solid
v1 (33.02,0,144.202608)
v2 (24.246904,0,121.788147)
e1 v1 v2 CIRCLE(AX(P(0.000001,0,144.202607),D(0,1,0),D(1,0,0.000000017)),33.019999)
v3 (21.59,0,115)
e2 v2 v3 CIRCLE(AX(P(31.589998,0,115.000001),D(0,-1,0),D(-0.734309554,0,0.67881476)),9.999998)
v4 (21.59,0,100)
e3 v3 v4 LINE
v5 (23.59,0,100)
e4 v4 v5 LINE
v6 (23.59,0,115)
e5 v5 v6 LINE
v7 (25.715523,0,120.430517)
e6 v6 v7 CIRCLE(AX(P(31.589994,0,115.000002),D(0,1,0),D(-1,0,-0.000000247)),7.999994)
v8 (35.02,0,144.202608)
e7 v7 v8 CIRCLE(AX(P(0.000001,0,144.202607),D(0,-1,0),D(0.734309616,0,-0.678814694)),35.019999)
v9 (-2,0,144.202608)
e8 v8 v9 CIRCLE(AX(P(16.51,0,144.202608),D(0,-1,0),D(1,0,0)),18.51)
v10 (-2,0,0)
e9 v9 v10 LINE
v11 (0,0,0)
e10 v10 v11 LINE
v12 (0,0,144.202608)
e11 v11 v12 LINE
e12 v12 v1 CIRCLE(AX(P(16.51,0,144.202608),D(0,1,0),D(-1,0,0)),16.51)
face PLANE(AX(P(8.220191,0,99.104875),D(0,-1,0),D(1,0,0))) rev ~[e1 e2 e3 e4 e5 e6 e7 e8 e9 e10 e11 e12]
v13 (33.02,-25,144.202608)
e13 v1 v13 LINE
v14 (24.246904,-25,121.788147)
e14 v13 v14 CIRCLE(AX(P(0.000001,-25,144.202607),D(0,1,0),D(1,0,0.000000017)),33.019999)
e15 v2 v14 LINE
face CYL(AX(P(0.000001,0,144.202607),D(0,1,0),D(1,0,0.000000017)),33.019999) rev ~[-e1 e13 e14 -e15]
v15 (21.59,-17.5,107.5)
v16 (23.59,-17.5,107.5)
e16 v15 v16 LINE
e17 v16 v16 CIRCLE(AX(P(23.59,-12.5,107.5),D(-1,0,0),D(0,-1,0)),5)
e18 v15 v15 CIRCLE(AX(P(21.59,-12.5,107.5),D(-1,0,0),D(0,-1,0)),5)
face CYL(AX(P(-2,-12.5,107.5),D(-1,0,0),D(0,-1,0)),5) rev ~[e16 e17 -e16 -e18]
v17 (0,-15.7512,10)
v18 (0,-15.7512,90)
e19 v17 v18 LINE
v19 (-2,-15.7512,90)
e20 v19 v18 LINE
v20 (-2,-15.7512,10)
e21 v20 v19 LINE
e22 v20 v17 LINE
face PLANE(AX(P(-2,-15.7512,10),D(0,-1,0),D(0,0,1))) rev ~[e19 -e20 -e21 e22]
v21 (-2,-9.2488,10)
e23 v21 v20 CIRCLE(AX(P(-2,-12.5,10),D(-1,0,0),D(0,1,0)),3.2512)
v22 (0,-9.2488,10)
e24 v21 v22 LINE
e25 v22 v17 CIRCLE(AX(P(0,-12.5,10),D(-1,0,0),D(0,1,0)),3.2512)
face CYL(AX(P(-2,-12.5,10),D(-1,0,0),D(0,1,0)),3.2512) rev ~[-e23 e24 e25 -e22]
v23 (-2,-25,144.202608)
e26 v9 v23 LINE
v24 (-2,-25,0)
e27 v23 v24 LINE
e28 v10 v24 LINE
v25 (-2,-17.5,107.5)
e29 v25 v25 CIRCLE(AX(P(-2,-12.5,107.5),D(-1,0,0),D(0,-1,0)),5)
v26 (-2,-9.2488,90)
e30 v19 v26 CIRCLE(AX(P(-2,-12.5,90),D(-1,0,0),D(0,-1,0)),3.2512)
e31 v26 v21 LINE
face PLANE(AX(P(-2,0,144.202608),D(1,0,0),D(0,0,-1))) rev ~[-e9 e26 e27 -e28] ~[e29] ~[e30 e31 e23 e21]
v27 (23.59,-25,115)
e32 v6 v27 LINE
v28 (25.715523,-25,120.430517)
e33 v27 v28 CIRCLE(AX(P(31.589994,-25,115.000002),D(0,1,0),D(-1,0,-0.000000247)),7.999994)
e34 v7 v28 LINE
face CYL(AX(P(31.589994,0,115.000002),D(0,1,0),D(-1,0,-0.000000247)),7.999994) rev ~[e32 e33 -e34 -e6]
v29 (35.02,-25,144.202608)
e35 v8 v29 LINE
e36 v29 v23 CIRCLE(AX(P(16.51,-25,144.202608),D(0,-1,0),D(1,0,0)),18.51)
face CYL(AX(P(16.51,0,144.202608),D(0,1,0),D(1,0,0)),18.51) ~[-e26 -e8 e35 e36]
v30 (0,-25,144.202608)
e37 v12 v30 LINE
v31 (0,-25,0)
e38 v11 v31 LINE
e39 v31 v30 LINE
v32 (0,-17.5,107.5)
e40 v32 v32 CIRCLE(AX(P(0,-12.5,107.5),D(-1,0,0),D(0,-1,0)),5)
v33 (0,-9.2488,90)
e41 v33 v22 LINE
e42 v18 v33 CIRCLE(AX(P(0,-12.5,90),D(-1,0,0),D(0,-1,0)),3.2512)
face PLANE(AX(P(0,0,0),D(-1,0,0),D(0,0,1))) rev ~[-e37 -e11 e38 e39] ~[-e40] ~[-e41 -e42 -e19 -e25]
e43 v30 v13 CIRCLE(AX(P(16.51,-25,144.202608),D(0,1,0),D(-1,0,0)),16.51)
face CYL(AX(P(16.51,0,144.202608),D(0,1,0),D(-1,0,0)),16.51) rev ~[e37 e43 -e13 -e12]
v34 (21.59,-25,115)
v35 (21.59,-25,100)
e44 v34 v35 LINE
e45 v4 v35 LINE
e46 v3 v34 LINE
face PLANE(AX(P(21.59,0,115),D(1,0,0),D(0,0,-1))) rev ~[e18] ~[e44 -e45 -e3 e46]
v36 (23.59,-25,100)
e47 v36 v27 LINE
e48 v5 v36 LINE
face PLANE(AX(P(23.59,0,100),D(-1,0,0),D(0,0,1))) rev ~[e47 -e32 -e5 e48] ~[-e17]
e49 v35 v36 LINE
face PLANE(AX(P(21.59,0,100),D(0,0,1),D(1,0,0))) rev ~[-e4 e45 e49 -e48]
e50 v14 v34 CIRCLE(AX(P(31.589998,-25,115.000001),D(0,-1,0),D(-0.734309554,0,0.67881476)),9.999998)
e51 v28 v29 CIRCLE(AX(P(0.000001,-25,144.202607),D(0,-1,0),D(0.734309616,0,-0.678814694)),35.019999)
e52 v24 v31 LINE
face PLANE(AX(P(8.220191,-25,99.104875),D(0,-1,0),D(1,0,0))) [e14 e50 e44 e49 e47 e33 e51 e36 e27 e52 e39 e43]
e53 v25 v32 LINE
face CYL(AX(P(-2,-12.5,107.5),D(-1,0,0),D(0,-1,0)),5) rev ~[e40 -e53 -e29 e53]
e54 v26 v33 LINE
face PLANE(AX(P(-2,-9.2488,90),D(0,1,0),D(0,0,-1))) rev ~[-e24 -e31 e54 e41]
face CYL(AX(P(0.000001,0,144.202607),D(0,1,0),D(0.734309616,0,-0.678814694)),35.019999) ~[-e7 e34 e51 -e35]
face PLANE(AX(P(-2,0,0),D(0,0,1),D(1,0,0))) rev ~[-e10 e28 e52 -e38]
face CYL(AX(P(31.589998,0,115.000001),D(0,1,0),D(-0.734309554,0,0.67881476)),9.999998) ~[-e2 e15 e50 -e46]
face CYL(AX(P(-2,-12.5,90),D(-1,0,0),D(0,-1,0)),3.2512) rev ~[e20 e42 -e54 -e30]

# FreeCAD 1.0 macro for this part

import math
import FreeCAD as App
import Part
import Sketcher
from FreeCAD import Vector

doc = App.newDocument("Part")
body = doc.addObject("PartDesign::Body", "Body")

# Sketch on XZ plane
sketch1 = body.newObject("Sketcher::SketchObject", "Sketch")
sketch1.AttachmentSupport = (doc.getObject("XZ_Plane"), [""])
sketch1.MapMode = "FlatFace"
sketch1.addGeometry(Part.LineSegment(Vector(-2, 0, 0), Vector(0, 0, 0)), False)
sketch1.addGeometry(Part.LineSegment(Vector(0, 0, 0), Vector(0, 144.2, 0)), False)
sketch1.addGeometry(Part.ArcOfCircle(Part.Circle(Vector(16.5, 144.2, 0), Vector(0, 0, 1), 16.5), math.radians(0), math.radians(180)), False)
sketch1.addGeometry(Part.ArcOfCircle(Part.Circle(Vector(0, 144.2, 0), Vector(0, 0, 1), 33), math.radians(-43), math.radians(0)), False)
sketch1.addGeometry(Part.ArcOfCircle(Part.Circle(Vector(31.6, 115, 0), Vector(0, 0, 1), 10), math.radians(137), math.radians(180)), False)
sketch1.addGeometry(Part.LineSegment(Vector(21.6, 115, 0), Vector(21.6, 100, 0)), False)
sketch1.addGeometry(Part.LineSegment(Vector(21.6, 100, 0), Vector(23.6, 100, 0)), False)
sketch1.addGeometry(Part.LineSegment(Vector(23.6, 100, 0), Vector(23.6, 115, 0)), False)
sketch1.addGeometry(Part.ArcOfCircle(Part.Circle(Vector(31.6, 115, 0), Vector(0, 0, 1), 8), math.radians(137), math.radians(180)), False)
sketch1.addGeometry(Part.ArcOfCircle(Part.Circle(Vector(0, 144.2, 0), Vector(0, 0, 1), 35), math.radians(-43), math.radians(0)), False)
sketch1.addGeometry(Part.ArcOfCircle(Part.Circle(Vector(16.5, 144.2, 0), Vector(0, 0, 1), 18.5), math.radians(0), math.radians(180)), False)
sketch1.addGeometry(Part.LineSegment(Vector(-2, 144.2, 0), Vector(-2, 0, 0)), False)
sketch1.addConstraint(Sketcher.Constraint("Coincident", 0, 2, 1, 1))
sketch1.addConstraint(Sketcher.Constraint("Tangent", 1, 2, 2, 2))
sketch1.addConstraint(Sketcher.Constraint("Tangent", 2, 1, 3, 2))
sketch1.addConstraint(Sketcher.Constraint("Tangent", 3, 1, 4, 1))
sketch1.addConstraint(Sketcher.Constraint("Tangent", 4, 2, 5, 1))
sketch1.addConstraint(Sketcher.Constraint("Coincident", 5, 2, 6, 1))
sketch1.addConstraint(Sketcher.Constraint("Coincident", 6, 2, 7, 1))
sketch1.addConstraint(Sketcher.Constraint("Tangent", 7, 2, 8, 2))
sketch1.addConstraint(Sketcher.Constraint("Tangent", 8, 1, 9, 1))
sketch1.addConstraint(Sketcher.Constraint("Tangent", 9, 2, 10, 1))
sketch1.addConstraint(Sketcher.Constraint("Tangent", 10, 2, 11, 1))
sketch1.addConstraint(Sketcher.Constraint("Coincident", 11, 2, 0, 1))
sketch1.addConstraint(Sketcher.Constraint("Horizontal", 0))
sketch1.addConstraint(Sketcher.Constraint("Vertical", 1))
sketch1.addConstraint(Sketcher.Constraint("Vertical", 5))
sketch1.addConstraint(Sketcher.Constraint("Horizontal", 6))
sketch1.addConstraint(Sketcher.Constraint("Vertical", 7))
sketch1.addConstraint(Sketcher.Constraint("Vertical", 11))
sketch1.addConstraint(Sketcher.Constraint("Coincident", 0, 2, -1, 1))
sketch1.addConstraint(Sketcher.Constraint("Coincident", 8, 3, 4, 3))
sketch1.addConstraint(Sketcher.Constraint("Coincident", 9, 3, 3, 3))
sketch1.addConstraint(Sketcher.Constraint("Coincident", 10, 3, 2, 3))
sketch1.addConstraint(Sketcher.Constraint("Coincident", 1, 2, 3, 3))
sketch1.addConstraint(Sketcher.Constraint("Radius", 4, 9.999998))
sketch1.addConstraint(Sketcher.Constraint("DistanceX", 0, 1, 0, 2, 2.0))
sketch1.addConstraint(Sketcher.Constraint("DistanceY", 5, 2, 5, 1, 15.0))
sketch1.addConstraint(Sketcher.Constraint("Radius", 2, 16.51))
sketch1.addConstraint(Sketcher.Constraint("DistanceY", -1, 1, 4, 3, 115.000001))
sketch1.addConstraint(Sketcher.Constraint("DistanceX", -1, 1, 4, 3, 31.589998))
pad1 = body.newObject("PartDesign::Pad", "Pad")
pad1.Profile = sketch1
pad1.Length = 25

# Sketch on YZ plane
sketch2 = body.newObject("Sketcher::SketchObject", "Sketch001")
sketch2.AttachmentSupport = (doc.getObject("YZ_Plane"), [""])
sketch2.MapMode = "FlatFace"
sketch2.AttachmentOffset = App.Placement(Vector(0, 0, -2), App.Rotation())
sketch2.addGeometry(Part.ArcOfCircle(Part.Circle(Vector(-12.5, 10, 0), Vector(0, 0, 1), 3.3), math.radians(180), math.radians(360)), False)
sketch2.addGeometry(Part.LineSegment(Vector(-15.8, 10, 0), Vector(-15.8, 90, 0)), False)
sketch2.addGeometry(Part.ArcOfCircle(Part.Circle(Vector(-12.5, 90, 0), Vector(0, 0, 1), 3.3), math.radians(0), math.radians(180)), False)
sketch2.addGeometry(Part.LineSegment(Vector(-9.2, 90, 0), Vector(-9.2, 10, 0)), False)
sketch2.addGeometry(Part.Circle(Vector(-12.5, 107.5, 0), Vector(0, 0, 1), 5), False)
sketch2.addConstraint(Sketcher.Constraint("Tangent", 0, 1, 1, 1))
sketch2.addConstraint(Sketcher.Constraint("Tangent", 1, 2, 2, 2))
sketch2.addConstraint(Sketcher.Constraint("Tangent", 2, 1, 3, 1))
sketch2.addConstraint(Sketcher.Constraint("Tangent", 3, 2, 0, 2))
sketch2.addConstraint(Sketcher.Constraint("Vertical", 1))
sketch2.addConstraint(Sketcher.Constraint("Vertical", 3))
sketch2.addConstraint(Sketcher.Constraint("Vertical", 2, 3, 4, 3))
sketch2.addConstraint(Sketcher.Constraint("Diameter", 4, 10.0))
sketch2.addConstraint(Sketcher.Constraint("DistanceY", 1, 1, 1, 2, 80.0))
sketch2.addConstraint(Sketcher.Constraint("DistanceY", -1, 1, 0, 3, 10.0))
sketch2.addConstraint(Sketcher.Constraint("DistanceX", 0, 3, -1, 1, 12.5))
sketch2.addConstraint(Sketcher.Constraint("DistanceY", -1, 1, 4, 3, 107.5))
sketch2.addConstraint(Sketcher.Constraint("Radius", 0, 3.2512))
pocket1 = body.newObject("PartDesign::Pocket", "Pocket")
pocket1.Profile = sketch2
pocket1.Type = "ThroughAll"
pocket1.Reversed = True

doc.recompute()
